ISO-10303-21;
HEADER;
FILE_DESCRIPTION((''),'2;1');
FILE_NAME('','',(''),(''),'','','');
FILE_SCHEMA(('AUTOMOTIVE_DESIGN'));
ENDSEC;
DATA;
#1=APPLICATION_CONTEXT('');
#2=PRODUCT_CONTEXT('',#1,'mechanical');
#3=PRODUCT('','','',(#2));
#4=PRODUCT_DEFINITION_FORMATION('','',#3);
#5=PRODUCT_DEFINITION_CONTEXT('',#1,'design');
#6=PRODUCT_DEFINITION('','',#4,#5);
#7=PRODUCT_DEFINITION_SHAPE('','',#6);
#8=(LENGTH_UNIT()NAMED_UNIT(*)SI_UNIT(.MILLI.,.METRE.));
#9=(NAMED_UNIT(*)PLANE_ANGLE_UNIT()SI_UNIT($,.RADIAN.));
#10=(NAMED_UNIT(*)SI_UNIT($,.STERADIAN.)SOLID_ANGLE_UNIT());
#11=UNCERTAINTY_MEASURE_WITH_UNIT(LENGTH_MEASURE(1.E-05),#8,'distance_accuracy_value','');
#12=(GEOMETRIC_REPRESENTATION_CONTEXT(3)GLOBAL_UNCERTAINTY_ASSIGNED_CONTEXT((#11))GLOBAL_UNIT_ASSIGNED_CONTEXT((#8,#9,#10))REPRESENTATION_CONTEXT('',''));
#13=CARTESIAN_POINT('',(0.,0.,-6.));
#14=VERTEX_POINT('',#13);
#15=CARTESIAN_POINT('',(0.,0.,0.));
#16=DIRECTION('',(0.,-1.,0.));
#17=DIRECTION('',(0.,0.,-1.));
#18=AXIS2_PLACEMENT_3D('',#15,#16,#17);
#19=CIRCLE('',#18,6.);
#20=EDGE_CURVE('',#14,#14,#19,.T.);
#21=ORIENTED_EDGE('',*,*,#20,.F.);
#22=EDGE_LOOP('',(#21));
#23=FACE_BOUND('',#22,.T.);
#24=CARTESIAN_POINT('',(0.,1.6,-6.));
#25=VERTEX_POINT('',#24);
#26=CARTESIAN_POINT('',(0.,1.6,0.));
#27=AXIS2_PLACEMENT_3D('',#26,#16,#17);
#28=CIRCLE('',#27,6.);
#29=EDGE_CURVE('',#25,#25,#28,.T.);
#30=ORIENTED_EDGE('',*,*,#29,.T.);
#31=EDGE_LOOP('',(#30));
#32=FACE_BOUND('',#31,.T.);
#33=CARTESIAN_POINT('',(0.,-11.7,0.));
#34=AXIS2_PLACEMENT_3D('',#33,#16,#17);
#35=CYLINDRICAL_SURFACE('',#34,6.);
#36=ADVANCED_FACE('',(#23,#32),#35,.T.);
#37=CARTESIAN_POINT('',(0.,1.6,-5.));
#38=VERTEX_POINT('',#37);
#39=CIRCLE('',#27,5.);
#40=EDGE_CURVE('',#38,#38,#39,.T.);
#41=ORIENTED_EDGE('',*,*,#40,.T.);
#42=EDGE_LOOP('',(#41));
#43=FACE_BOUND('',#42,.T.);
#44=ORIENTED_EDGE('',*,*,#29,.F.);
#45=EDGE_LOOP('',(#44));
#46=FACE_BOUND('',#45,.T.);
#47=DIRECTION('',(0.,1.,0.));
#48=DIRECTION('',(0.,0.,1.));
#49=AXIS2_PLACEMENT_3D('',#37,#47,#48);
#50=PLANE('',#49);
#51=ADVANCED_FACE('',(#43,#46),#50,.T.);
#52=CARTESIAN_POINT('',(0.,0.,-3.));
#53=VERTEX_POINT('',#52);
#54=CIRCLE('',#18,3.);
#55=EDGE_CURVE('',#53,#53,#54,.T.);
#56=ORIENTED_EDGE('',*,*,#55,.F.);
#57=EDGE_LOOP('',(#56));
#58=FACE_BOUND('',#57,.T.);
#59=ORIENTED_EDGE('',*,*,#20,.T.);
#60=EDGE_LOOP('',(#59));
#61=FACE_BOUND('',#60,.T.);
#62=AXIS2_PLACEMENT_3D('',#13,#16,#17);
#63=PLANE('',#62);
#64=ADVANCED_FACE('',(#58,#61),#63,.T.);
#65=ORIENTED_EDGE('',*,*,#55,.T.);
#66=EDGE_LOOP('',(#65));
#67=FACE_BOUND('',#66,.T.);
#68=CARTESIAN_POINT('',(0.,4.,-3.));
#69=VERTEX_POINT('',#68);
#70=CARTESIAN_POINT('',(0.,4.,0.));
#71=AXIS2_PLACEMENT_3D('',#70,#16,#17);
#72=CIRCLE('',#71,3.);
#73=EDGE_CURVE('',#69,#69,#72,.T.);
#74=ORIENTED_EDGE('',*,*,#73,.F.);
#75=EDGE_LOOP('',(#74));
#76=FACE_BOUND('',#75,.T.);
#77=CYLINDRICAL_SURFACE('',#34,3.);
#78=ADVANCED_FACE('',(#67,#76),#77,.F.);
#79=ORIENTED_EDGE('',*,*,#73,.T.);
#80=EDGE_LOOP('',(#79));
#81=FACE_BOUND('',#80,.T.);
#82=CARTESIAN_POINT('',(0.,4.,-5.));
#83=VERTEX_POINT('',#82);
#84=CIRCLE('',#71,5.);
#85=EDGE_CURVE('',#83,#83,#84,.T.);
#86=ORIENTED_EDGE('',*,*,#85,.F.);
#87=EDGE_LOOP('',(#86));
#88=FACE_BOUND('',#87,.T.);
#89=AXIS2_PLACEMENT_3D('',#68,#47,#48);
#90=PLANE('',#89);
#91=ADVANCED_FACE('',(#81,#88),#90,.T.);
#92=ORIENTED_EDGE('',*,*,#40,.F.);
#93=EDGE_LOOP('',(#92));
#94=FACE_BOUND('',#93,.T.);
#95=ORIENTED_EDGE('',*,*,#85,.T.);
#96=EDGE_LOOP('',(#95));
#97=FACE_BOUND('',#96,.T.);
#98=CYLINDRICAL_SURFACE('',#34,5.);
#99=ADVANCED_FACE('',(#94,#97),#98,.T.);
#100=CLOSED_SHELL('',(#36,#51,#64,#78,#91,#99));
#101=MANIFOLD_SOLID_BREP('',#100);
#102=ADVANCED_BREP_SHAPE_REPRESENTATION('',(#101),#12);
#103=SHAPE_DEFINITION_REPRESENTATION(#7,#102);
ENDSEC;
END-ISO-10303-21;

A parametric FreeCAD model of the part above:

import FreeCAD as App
import Part
import Sketcher

V = App.Vector


def add_polygon(sketch, points):
    """Adds a closed chain of lines whose ends are joined by coincident constraints."""
    first, n = sketch.GeometryCount, len(points)
    for a, b in zip(points, points[1:] + points[:1]):
        sketch.addGeometry(Part.LineSegment(App.Vector(*a, 0), App.Vector(*b, 0)), False)
    for i in range(n):
        sketch.addConstraint(Sketcher.Constraint("Coincident", first + i, 2, first + (i + 1) % n, 1))

doc = App.newDocument("Part")
params = doc.addObject("Spreadsheet::Sheet", "Params")
for row, (alias, value) in enumerate([
    ("sketch1_width", "4 mm"),
    ("sketch1_height", "3 mm"),
    ("sketch1_height2", "1 mm"),
    ("sketch1_width2", "1.6 mm"),
    ("revolution_angle", "360 deg"),
], start=1):
    params.set(f"A{row}", alias)
    params.set(f"B{row}", "=" + value)
    params.setAlias(f"B{row}", alias)

body = doc.addObject("PartDesign::Body", "Body")

# Sketch on YZ plane
sketch1 = body.newObject("Sketcher::SketchObject", "Sketch")
sketch1.AttachmentSupport = (doc.getObject("YZ_Plane"), [""])
sketch1.MapMode = "FlatFace"
add_polygon(sketch1, [(4, -3), (0, -3), (0, -6), (1.6, -6), (1.6, -5), (4, -5)])  # lines 0-5
sketch1.addConstraint(Sketcher.Constraint("Horizontal", 0))
sketch1.addConstraint(Sketcher.Constraint("Vertical", 1))
sketch1.addConstraint(Sketcher.Constraint("Horizontal", 2))
sketch1.addConstraint(Sketcher.Constraint("Vertical", 3))
sketch1.addConstraint(Sketcher.Constraint("Horizontal", 4))
sketch1.addConstraint(Sketcher.Constraint("Vertical", 5))
sketch1.addConstraint(Sketcher.Constraint("PointOnObject", 0, 2, -2))
sketch1.addConstraint(Sketcher.Constraint("DistanceX", 0, 2, 0, 1, 4.0))
sketch1.addConstraint(Sketcher.Constraint("DistanceY", 1, 2, 1, 1, 3.0))
sketch1.addConstraint(Sketcher.Constraint("DistanceY", 3, 1, 3, 2, 1.0))
sketch1.addConstraint(Sketcher.Constraint("DistanceX", 2, 1, 2, 2, 1.6))
sketch1.addConstraint(Sketcher.Constraint("DistanceY", 0, 2, -1, 1, 3.0))
sketch1.setExpression("Constraints[13]", "Params.sketch1_width")
sketch1.setExpression("Constraints[14]", "Params.sketch1_height")
sketch1.setExpression("Constraints[15]", "Params.sketch1_height2")
sketch1.setExpression("Constraints[16]", "Params.sketch1_width2")
revolution = body.newObject("PartDesign::Revolution", "Revolution")
revolution.Profile = sketch1
revolution.ReferenceAxis = (sketch1, ["H_Axis"])
revolution.setExpression("Angle", "Params.revolution_angle")

doc.recompute()
